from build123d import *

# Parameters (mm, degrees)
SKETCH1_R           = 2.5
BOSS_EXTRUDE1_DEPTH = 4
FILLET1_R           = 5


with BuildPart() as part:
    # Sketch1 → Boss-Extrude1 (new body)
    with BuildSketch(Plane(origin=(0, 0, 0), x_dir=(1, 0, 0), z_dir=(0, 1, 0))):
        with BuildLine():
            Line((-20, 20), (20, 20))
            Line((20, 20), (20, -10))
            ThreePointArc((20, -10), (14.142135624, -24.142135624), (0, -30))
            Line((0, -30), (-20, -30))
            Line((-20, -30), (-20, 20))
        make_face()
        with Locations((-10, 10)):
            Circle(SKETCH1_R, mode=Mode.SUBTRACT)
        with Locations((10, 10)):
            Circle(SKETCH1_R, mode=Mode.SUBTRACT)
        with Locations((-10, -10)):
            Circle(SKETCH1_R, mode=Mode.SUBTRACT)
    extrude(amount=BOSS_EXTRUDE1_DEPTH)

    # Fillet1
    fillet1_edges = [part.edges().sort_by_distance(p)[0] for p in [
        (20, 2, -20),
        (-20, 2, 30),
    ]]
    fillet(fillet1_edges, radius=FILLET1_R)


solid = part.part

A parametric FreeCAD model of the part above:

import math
import FreeCAD as App
import Part
import Sketcher

V = App.Vector


def edges_at(feature, points):
    """Names of the edges that pass closest to the given points."""
    edges = feature.Shape.Edges
    near = lambda p: min(range(len(edges)), key=lambda i: edges[i].distToShape(Part.Vertex(*p))[0])
    return sorted({f"Edge{near(p) + 1}" for p in points})

doc = App.newDocument("Part")
params = doc.addObject("Spreadsheet::Sheet", "Params")
for row, (alias, value) in enumerate([
    ("sketch1_diameter", "5 mm"),
    ("sketch1_radius", "20 mm"),
    ("sketch1_width", "40 mm"),
    ("sketch1_height", "50 mm"),
    ("pad1_length", "4 mm"),
    ("fillet_radius", "5 mm"),
], start=1):
    params.set(f"A{row}", alias)
    params.set(f"B{row}", "=" + value)
    params.setAlias(f"B{row}", alias)

body = doc.addObject("PartDesign::Body", "Body")

# Sketch on XZ plane
sketch1 = body.newObject("Sketcher::SketchObject", "Sketch")
sketch1.AttachmentSupport = (doc.getObject("XZ_Plane"), [""])
sketch1.MapMode = "FlatFace"
sketch1.addGeometry([
    Part.LineSegment(V(20, -20, 0), V(-20, -20, 0)),  # 0
    Part.LineSegment(V(-20, -20, 0), V(-20, 30, 0)),  # 1
    Part.LineSegment(V(-20, 30, 0), V(0, 30, 0)),  # 2
    Part.ArcOfCircle(Part.Circle(V(0, 10, 0), V(0, 0, 1), 20), math.radians(0), math.radians(90)),  # 3
    Part.LineSegment(V(20, 10, 0), V(20, -20, 0)),  # 4
    Part.Circle(V(-10, 10, 0), V(0, 0, 1), 2.5),  # 5
    Part.Circle(V(10, -10, 0), V(0, 0, 1), 2.5),  # 6
    Part.Circle(V(-10, -10, 0), V(0, 0, 1), 2.5),  # 7
], False)
sketch1.addConstraint([
    Sketcher.Constraint("Coincident", 0, 2, 1, 1),
    Sketcher.Constraint("Coincident", 1, 2, 2, 1),
    Sketcher.Constraint("Tangent", 2, 2, 3, 2),
    Sketcher.Constraint("Tangent", 3, 1, 4, 1),
    Sketcher.Constraint("Coincident", 4, 2, 0, 1),
    Sketcher.Constraint("Horizontal", 0),
    Sketcher.Constraint("Vertical", 1),
    Sketcher.Constraint("Horizontal", 2),
    Sketcher.Constraint("Vertical", 4),
    Sketcher.Constraint("Equal", 5, 6),
    Sketcher.Constraint("Equal", 6, 7),
    Sketcher.Constraint("Symmetric", 5, 3, 6, 3, -1, 1),
    Sketcher.Constraint("Symmetric", 6, 3, 7, 3, -2),
    Sketcher.Constraint("PointOnObject", 3, 3, -2),
    Sketcher.Constraint("Horizontal", 3, 3, 5, 3),
    Sketcher.Constraint("Diameter", 5, 5.0),
    Sketcher.Constraint("Radius", 3, 20.0),
    Sketcher.Constraint("DistanceX", 0, 2, 0, 1, 40.0),
    Sketcher.Constraint("DistanceY", 1, 1, 1, 2, 50.0),
    Sketcher.Constraint("DistanceY", -1, 1, 3, 3, 10.0),
    Sketcher.Constraint("DistanceX", 5, 3, -1, 1, 10.0),
])
sketch1.setExpression("Constraints[15]", "Params.sketch1_diameter")
sketch1.setExpression("Constraints[16]", "Params.sketch1_radius")
sketch1.setExpression("Constraints[17]", "Params.sketch1_width")
sketch1.setExpression("Constraints[18]", "Params.sketch1_height")
pad1 = body.newObject("PartDesign::Pad", "Pad")
pad1.Profile = sketch1
pad1.setExpression("Length", "Params.pad1_length")
pad1.Reversed = True
doc.recompute()

fillet = body.newObject("PartDesign::Fillet", "Fillet")
fillet.Base = (pad1, edges_at(pad1, [(20, 2, -20), (-20, 2, 30)]))
fillet.setExpression("Radius", "Params.fillet_radius")

doc.recompute()
